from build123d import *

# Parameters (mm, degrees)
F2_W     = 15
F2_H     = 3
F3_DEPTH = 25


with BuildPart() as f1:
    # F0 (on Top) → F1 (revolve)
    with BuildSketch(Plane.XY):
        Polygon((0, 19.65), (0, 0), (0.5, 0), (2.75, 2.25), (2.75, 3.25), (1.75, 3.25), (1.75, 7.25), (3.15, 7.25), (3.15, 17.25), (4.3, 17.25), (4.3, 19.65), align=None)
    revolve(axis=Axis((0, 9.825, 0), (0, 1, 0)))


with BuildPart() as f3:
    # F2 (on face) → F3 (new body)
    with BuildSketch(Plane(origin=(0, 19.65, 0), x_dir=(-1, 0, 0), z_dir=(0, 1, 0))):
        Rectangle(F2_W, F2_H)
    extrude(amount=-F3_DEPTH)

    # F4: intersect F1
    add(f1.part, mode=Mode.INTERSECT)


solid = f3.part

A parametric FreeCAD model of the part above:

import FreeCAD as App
import Part
import Sketcher
from FreeCAD import Vector
Q = App.Units.Quantity

doc = App.newDocument("Part")
body = doc.addObject("PartDesign::Body", "Body")

# Sketch on XY plane
sketch1 = body.newObject("Sketcher::SketchObject", "Sketch")
sketch1.AttachmentSupport = (doc.getObject("XY_Plane"), [""])
sketch1.MapMode = "FlatFace"
sketch1.addGeometry(Part.LineSegment(Vector(0, 19.65, 0), Vector(0, 0, 0)), False)
sketch1.addGeometry(Part.LineSegment(Vector(0, 0, 0), Vector(0.5, 0, 0)), False)
sketch1.addGeometry(Part.LineSegment(Vector(0.5, 0, 0), Vector(2.75, 2.25, 0)), False)
sketch1.addGeometry(Part.LineSegment(Vector(2.75, 2.25, 0), Vector(2.75, 3.25, 0)), False)
sketch1.addGeometry(Part.LineSegment(Vector(2.75, 3.25, 0), Vector(1.75, 3.25, 0)), False)
sketch1.addGeometry(Part.LineSegment(Vector(1.75, 3.25, 0), Vector(1.75, 7.25, 0)), False)
sketch1.addGeometry(Part.LineSegment(Vector(1.75, 7.25, 0), Vector(3.15, 7.25, 0)), False)
sketch1.addGeometry(Part.LineSegment(Vector(3.15, 7.25, 0), Vector(3.15, 17.25, 0)), False)
sketch1.addGeometry(Part.LineSegment(Vector(3.15, 17.25, 0), Vector(4.3, 17.25, 0)), False)
sketch1.addGeometry(Part.LineSegment(Vector(4.3, 17.25, 0), Vector(4.3, 19.65, 0)), False)
sketch1.addGeometry(Part.LineSegment(Vector(4.3, 19.65, 0), Vector(0, 19.65, 0)), False)
sketch1.addConstraint(Sketcher.Constraint("Coincident", 0, 2, 1, 1))
sketch1.addConstraint(Sketcher.Constraint("Coincident", 1, 2, 2, 1))
sketch1.addConstraint(Sketcher.Constraint("Coincident", 2, 2, 3, 1))
sketch1.addConstraint(Sketcher.Constraint("Coincident", 3, 2, 4, 1))
sketch1.addConstraint(Sketcher.Constraint("Coincident", 4, 2, 5, 1))
sketch1.addConstraint(Sketcher.Constraint("Coincident", 5, 2, 6, 1))
sketch1.addConstraint(Sketcher.Constraint("Coincident", 6, 2, 7, 1))
sketch1.addConstraint(Sketcher.Constraint("Coincident", 7, 2, 8, 1))
sketch1.addConstraint(Sketcher.Constraint("Coincident", 8, 2, 9, 1))
sketch1.addConstraint(Sketcher.Constraint("Coincident", 9, 2, 10, 1))
sketch1.addConstraint(Sketcher.Constraint("Coincident", 10, 2, 0, 1))
sketch1.addConstraint(Sketcher.Constraint("Vertical", 0))
sketch1.addConstraint(Sketcher.Constraint("Horizontal", 1))
sketch1.addConstraint(Sketcher.Constraint("Vertical", 3))
sketch1.addConstraint(Sketcher.Constraint("Horizontal", 4))
sketch1.addConstraint(Sketcher.Constraint("Vertical", 5))
sketch1.addConstraint(Sketcher.Constraint("Horizontal", 6))
sketch1.addConstraint(Sketcher.Constraint("Vertical", 7))
sketch1.addConstraint(Sketcher.Constraint("Horizontal", 8))
sketch1.addConstraint(Sketcher.Constraint("Vertical", 9))
sketch1.addConstraint(Sketcher.Constraint("Horizontal", 10))
sketch1.addConstraint(Sketcher.Constraint("Coincident", 0, 2, -1, 1))
sketch1.addConstraint(Sketcher.Constraint("Equal", 4, 3))
sketch1.addConstraint(Sketcher.Constraint("DistanceX", 4, 2, 4, 1, Q("1 mm")))
sketch1.addConstraint(Sketcher.Constraint("DistanceY", 5, 1, 5, 2, Q("4 mm")))
sketch1.addConstraint(Sketcher.Constraint("DistanceY", 7, 1, 7, 2, Q("10 mm")))
sketch1.addConstraint(Sketcher.Constraint("Angle", 2, Q("45 deg")))
sketch1.addConstraint(Sketcher.Constraint("DistanceX", 1, 1, 1, 2, Q("0.5 mm")))
sketch1.addConstraint(Sketcher.Constraint("DistanceX", 6, 1, 6, 2, Q("1.4 mm")))
sketch1.addConstraint(Sketcher.Constraint("DistanceX", 10, 2, 10, 1, Q("4.3 mm")))
sketch1.addConstraint(Sketcher.Constraint("DistanceY", 9, 1, 9, 2, Q("2.4 mm")))
sketch1.addConstraint(Sketcher.Constraint("DistanceX", 8, 1, 8, 2, Q("1.15 mm")))
revolution = body.newObject("PartDesign::Revolution", "Revolution")
revolution.Profile = sketch1
revolution.ReferenceAxis = (sketch1, ["V_Axis"])
revolution.Angle = 360
body2 = doc.addObject("PartDesign::Body", "Body001")

# Sketch on XZ plane
sketch2 = body2.newObject("Sketcher::SketchObject", "Sketch001")
sketch2.AttachmentSupport = (doc.getObject("XZ_Plane001"), [""])
sketch2.MapMode = "FlatFace"
sketch2.AttachmentOffset = App.Placement(Vector(0, 0, -19.65), App.Rotation())
sketch2.addGeometry(Part.LineSegment(Vector(7.5, 1.5, 0), Vector(7.5, -1.5, 0)), False)
sketch2.addGeometry(Part.LineSegment(Vector(7.5, -1.5, 0), Vector(-7.5, -1.5, 0)), False)
sketch2.addGeometry(Part.LineSegment(Vector(-7.5, -1.5, 0), Vector(-7.5, 1.5, 0)), False)
sketch2.addGeometry(Part.LineSegment(Vector(-7.5, 1.5, 0), Vector(7.5, 1.5, 0)), False)
sketch2.addConstraint(Sketcher.Constraint("Coincident", 0, 2, 1, 1))
sketch2.addConstraint(Sketcher.Constraint("Coincident", 1, 2, 2, 1))
sketch2.addConstraint(Sketcher.Constraint("Coincident", 2, 2, 3, 1))
sketch2.addConstraint(Sketcher.Constraint("Coincident", 3, 2, 0, 1))
sketch2.addConstraint(Sketcher.Constraint("Vertical", 0))
sketch2.addConstraint(Sketcher.Constraint("Horizontal", 1))
sketch2.addConstraint(Sketcher.Constraint("Vertical", 2))
sketch2.addConstraint(Sketcher.Constraint("Horizontal", 3))
sketch2.addConstraint(Sketcher.Constraint("Symmetric", 0, 2, 2, 2, -1, 1))
sketch2.addConstraint(Sketcher.Constraint("DistanceX", 1, 2, 1, 1, Q("15 mm")))
sketch2.addConstraint(Sketcher.Constraint("DistanceY", 0, 2, 0, 1, Q("3 mm")))
pad1 = body2.newObject("PartDesign::Pad", "Pad")
pad1.Profile = sketch2
pad1.Length = 25
doc.recompute()

boolean = body2.newObject("PartDesign::Boolean", "Boolean")
boolean.Type = "Common"
boolean.addObjects([body])

doc.recompute()
